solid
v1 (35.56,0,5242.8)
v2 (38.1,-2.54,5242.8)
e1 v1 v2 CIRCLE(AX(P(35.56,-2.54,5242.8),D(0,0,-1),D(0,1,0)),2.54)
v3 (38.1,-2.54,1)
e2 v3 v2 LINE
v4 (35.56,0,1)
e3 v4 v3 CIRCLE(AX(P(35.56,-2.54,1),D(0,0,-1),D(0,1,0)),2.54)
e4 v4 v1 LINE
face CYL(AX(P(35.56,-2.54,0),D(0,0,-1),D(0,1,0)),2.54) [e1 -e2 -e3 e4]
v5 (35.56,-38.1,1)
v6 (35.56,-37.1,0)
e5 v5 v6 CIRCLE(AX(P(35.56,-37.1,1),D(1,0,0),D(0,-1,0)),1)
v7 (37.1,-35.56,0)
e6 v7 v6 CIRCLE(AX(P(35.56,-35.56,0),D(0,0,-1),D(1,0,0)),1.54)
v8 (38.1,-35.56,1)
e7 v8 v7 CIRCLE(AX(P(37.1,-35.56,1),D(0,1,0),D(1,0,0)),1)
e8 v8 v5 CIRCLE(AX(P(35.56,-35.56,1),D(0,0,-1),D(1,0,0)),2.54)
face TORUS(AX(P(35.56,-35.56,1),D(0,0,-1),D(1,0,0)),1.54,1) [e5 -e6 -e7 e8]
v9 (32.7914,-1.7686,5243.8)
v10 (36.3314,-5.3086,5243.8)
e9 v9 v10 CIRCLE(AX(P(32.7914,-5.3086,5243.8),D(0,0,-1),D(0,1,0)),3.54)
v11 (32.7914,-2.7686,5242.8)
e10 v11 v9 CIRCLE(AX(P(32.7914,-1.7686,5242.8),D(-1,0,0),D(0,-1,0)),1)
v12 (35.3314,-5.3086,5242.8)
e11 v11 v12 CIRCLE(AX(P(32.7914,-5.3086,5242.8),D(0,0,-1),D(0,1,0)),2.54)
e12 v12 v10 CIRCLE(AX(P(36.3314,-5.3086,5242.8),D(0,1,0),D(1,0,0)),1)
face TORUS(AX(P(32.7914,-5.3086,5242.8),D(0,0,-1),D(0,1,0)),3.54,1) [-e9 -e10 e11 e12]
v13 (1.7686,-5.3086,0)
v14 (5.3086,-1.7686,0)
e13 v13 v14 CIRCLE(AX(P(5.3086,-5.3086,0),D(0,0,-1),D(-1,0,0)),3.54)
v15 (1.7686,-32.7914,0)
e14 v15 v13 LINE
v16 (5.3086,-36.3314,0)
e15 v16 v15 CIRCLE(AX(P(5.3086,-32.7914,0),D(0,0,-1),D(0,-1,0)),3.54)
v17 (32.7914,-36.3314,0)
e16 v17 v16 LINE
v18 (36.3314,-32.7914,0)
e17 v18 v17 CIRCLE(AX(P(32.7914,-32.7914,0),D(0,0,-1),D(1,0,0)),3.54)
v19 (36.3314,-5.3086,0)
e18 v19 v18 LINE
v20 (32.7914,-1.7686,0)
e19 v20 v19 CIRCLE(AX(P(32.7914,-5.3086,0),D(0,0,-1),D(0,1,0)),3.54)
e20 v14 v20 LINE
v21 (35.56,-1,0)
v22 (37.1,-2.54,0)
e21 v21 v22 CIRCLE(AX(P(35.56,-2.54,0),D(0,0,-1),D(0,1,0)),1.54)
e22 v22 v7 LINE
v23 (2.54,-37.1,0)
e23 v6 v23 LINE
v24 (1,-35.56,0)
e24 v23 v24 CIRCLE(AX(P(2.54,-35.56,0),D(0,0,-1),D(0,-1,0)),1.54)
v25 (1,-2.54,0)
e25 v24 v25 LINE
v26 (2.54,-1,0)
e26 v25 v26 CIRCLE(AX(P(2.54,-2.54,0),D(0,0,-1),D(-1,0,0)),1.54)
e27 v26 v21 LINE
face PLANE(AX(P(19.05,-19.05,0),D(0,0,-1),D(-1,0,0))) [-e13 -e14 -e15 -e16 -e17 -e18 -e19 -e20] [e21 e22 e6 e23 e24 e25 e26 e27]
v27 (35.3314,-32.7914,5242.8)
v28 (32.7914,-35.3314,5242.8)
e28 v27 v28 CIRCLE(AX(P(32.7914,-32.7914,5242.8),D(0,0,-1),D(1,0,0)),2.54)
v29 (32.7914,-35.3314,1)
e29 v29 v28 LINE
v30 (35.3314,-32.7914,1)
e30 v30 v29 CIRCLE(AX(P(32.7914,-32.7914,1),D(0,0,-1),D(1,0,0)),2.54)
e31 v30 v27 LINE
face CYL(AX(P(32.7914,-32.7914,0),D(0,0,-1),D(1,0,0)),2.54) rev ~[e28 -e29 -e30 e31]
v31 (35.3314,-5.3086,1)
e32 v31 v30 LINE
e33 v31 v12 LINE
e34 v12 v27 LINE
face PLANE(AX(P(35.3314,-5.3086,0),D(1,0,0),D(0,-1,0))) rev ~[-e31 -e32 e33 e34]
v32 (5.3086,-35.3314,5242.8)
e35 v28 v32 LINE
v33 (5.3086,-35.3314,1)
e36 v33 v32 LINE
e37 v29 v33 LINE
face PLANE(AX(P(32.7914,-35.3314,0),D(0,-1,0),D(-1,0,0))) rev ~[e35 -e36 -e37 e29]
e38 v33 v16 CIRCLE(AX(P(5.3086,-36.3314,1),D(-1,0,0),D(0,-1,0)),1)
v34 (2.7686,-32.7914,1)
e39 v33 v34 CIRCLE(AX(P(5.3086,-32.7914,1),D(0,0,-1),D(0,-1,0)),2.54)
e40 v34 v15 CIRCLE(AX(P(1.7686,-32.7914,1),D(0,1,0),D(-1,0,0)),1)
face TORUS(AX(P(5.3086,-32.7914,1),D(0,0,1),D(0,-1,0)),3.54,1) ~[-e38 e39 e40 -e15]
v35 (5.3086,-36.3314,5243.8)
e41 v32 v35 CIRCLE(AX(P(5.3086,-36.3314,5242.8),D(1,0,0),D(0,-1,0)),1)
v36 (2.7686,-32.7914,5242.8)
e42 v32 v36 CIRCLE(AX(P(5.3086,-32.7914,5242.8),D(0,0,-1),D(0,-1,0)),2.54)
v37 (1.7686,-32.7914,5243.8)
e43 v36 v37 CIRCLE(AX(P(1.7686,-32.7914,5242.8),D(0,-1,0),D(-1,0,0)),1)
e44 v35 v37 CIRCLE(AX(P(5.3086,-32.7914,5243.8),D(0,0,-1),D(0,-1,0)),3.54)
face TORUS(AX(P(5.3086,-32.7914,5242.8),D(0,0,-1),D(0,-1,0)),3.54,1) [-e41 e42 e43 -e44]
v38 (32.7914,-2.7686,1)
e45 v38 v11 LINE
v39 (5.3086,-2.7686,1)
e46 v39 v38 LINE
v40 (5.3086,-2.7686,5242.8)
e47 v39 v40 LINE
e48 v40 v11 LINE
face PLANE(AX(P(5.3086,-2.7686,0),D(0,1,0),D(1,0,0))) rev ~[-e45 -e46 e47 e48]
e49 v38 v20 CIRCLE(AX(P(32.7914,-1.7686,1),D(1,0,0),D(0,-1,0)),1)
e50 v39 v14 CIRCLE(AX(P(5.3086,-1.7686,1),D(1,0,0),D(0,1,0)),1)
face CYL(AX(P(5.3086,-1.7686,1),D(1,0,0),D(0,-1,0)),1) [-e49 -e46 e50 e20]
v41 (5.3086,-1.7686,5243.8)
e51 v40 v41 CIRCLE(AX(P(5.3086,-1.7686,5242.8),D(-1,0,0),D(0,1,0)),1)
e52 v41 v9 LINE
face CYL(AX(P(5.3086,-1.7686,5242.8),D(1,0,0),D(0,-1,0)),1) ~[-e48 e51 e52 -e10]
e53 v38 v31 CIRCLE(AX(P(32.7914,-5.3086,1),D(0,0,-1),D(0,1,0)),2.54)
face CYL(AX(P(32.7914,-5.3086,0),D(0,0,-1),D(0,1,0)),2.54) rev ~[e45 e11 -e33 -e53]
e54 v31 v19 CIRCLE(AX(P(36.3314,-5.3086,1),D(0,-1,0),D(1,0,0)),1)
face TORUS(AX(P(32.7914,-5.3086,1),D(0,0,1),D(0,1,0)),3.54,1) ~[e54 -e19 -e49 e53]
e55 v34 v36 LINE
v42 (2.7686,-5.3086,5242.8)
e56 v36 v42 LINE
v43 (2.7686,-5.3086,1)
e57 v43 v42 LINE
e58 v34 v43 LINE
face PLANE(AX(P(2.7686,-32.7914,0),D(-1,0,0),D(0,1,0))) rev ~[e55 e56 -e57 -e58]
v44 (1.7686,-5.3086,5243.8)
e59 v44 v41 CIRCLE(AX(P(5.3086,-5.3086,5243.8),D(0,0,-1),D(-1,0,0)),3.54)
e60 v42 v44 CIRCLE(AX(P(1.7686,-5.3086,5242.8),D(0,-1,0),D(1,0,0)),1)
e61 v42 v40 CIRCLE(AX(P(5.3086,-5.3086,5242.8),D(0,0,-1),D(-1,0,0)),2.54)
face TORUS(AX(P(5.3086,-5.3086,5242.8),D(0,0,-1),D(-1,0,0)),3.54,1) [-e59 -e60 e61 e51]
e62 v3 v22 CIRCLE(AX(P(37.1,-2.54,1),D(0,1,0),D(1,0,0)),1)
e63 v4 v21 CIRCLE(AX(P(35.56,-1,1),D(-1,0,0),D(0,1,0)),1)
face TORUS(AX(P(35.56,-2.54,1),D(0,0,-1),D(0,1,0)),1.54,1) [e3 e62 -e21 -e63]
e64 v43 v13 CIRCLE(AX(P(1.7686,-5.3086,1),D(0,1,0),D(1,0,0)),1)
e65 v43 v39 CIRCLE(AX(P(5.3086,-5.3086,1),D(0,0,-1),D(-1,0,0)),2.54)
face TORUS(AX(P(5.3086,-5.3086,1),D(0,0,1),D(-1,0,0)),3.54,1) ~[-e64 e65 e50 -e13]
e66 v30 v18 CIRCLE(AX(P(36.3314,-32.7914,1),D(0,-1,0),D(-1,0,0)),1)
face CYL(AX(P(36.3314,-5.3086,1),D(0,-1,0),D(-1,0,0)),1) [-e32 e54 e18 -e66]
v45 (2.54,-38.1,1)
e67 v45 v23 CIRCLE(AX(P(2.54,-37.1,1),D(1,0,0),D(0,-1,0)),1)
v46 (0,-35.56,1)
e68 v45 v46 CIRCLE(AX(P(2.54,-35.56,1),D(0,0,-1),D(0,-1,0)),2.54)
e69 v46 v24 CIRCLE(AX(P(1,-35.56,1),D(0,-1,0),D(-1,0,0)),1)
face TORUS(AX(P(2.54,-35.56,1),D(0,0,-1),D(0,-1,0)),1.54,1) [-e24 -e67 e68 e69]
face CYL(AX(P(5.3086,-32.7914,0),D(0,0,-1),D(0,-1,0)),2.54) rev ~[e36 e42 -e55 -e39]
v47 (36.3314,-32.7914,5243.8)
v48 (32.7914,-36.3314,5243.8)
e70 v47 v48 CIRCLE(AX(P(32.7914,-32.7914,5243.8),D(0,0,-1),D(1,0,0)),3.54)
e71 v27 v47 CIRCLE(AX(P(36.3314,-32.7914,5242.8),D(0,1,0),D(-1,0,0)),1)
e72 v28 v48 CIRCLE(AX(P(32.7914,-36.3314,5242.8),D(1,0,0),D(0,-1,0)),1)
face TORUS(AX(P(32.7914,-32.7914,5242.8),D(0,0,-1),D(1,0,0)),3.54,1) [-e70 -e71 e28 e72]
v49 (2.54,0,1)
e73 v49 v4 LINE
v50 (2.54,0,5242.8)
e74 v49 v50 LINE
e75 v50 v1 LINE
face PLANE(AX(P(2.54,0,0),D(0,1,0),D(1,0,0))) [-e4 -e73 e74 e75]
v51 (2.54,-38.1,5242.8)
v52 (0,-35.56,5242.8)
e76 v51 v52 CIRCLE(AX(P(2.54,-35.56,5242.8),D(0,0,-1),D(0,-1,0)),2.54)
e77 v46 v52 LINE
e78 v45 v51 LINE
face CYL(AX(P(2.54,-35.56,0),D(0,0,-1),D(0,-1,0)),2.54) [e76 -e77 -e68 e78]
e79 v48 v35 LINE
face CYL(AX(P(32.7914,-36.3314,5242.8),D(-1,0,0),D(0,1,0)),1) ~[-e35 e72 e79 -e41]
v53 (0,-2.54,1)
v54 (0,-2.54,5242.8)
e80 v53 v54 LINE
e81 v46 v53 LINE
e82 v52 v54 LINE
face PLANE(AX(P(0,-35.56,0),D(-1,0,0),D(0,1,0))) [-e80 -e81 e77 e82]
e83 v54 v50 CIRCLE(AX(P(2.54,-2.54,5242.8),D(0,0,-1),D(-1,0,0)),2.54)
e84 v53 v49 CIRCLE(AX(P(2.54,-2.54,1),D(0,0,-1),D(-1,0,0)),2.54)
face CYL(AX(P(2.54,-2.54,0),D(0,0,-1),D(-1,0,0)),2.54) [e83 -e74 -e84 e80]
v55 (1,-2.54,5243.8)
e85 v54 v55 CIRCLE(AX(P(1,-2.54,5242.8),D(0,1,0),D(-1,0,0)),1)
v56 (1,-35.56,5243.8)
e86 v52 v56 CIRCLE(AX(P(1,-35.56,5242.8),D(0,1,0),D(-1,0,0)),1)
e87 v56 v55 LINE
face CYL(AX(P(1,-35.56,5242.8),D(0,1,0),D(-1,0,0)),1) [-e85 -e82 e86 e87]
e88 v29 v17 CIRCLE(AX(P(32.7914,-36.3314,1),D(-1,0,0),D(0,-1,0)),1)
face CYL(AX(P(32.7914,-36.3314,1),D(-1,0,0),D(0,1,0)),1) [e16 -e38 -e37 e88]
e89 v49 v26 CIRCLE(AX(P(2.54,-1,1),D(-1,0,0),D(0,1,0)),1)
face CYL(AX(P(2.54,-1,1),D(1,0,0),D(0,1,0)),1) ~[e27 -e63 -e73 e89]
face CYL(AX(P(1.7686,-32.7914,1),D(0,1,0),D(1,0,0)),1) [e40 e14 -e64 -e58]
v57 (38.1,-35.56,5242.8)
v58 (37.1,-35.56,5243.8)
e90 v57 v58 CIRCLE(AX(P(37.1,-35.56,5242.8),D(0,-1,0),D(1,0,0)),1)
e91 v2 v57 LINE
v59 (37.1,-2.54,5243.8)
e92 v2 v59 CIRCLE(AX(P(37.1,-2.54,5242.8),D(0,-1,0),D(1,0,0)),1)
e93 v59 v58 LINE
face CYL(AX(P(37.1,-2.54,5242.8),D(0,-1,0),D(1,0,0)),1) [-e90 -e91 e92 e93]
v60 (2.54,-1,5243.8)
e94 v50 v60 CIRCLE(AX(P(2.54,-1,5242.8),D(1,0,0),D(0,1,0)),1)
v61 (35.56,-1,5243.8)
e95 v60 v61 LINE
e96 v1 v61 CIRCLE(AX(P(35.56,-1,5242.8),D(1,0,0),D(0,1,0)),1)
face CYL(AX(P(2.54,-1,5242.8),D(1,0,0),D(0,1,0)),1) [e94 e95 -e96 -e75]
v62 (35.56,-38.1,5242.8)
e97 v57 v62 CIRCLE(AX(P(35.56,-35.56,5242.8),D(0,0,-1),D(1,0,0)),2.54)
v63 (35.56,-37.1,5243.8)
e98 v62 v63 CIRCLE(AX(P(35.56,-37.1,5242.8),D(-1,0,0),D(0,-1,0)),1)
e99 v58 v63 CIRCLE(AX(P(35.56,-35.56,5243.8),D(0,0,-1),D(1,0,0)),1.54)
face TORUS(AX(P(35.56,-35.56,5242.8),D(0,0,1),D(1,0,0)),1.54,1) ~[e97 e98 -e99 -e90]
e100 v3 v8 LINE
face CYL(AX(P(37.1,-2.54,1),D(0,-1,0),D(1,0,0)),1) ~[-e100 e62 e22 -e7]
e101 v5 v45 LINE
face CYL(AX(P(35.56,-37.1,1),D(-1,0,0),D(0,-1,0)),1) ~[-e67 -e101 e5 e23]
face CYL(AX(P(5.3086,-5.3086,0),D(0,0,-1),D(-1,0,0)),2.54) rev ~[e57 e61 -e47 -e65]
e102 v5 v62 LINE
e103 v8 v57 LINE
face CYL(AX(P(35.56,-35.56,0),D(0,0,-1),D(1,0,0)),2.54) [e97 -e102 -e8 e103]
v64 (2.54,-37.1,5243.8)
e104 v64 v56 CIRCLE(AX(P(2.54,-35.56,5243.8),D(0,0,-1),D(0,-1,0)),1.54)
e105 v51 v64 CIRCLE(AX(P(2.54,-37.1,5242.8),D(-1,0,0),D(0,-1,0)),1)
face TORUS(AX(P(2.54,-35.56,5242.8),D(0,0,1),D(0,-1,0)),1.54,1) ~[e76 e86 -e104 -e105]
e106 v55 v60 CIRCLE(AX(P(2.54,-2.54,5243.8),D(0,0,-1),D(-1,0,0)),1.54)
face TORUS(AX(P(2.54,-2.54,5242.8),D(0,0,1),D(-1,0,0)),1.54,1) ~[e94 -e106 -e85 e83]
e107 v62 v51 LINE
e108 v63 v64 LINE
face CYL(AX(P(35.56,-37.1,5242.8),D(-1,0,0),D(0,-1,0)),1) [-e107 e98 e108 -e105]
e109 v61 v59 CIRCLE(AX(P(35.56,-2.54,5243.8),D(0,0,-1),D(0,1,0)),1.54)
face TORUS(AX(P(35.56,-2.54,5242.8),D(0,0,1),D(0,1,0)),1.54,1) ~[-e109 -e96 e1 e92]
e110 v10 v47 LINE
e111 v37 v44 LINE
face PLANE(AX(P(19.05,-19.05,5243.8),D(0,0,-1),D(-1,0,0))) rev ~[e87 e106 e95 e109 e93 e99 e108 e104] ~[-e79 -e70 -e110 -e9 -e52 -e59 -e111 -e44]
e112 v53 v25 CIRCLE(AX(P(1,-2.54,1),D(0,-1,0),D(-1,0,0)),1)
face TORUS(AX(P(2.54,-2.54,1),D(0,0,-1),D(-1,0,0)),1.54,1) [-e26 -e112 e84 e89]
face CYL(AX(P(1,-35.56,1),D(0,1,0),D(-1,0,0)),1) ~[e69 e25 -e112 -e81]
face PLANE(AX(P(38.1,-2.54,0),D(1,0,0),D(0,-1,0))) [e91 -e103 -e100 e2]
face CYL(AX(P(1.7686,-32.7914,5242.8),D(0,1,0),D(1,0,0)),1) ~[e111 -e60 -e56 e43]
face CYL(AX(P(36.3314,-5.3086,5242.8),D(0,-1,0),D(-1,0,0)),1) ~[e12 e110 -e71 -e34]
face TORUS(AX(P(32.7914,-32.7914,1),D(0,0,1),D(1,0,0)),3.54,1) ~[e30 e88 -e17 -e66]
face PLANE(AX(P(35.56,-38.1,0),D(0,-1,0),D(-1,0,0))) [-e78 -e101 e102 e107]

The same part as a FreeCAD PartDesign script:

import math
import FreeCAD as App
import Part
import Sketcher
Q = App.Units.Quantity


def edges_at(feature, points):
    """Names of the edges that pass closest to the given points."""
    edges = feature.Shape.Edges
    near = lambda p: min(range(len(edges)), key=lambda i: edges[i].distToShape(Part.Vertex(*p))[0])
    return sorted({f"Edge{near(p) + 1}" for p in points})

doc = App.newDocument("Part")
body = doc.addObject("PartDesign::Body", "Body")

# Sketch on XY plane
sketch1 = body.newObject("Sketcher::SketchObject", "Sketch")
sketch1.AttachmentSupport = (doc.getObject("XY_Plane"), [""])
sketch1.MapMode = "FlatFace"
sketch1.addGeometry([
    Part.LineSegment(App.Vector(35.6, 0, 0), App.Vector(2.5, 0, 0)),  # 0
    Part.ArcOfCircle(Part.Circle(App.Vector(2.5, -2.5, 0), App.Vector(0, 0, 1), 2.5), math.radians(90), math.radians(180)),  # 1
    Part.LineSegment(App.Vector(0, -2.5, 0), App.Vector(0, -35.6, 0)),  # 2
    Part.ArcOfCircle(Part.Circle(App.Vector(2.5, -35.6, 0), App.Vector(0, 0, 1), 2.5), math.radians(-180), math.radians(-90)),  # 3
    Part.LineSegment(App.Vector(2.5, -38.1, 0), App.Vector(35.6, -38.1, 0)),  # 4
    Part.ArcOfCircle(Part.Circle(App.Vector(35.6, -35.6, 0), App.Vector(0, 0, 1), 2.5), math.radians(-90), math.radians(0)),  # 5
    Part.LineSegment(App.Vector(38.1, -35.6, 0), App.Vector(38.1, -2.5, 0)),  # 6
    Part.ArcOfCircle(Part.Circle(App.Vector(35.6, -2.5, 0), App.Vector(0, 0, 1), 2.5), math.radians(0), math.radians(90)),  # 7
    Part.LineSegment(App.Vector(5.3, -2.8, 0), App.Vector(32.8, -2.8, 0)),  # 8
    Part.ArcOfCircle(Part.Circle(App.Vector(32.8, -5.3, 0), App.Vector(0, 0, 1), 2.5), math.radians(0), math.radians(90)),  # 9
    Part.LineSegment(App.Vector(35.3, -5.3, 0), App.Vector(35.3, -32.8, 0)),  # 10
    Part.ArcOfCircle(Part.Circle(App.Vector(32.8, -32.8, 0), App.Vector(0, 0, 1), 2.5), math.radians(-90), math.radians(0)),  # 11
    Part.LineSegment(App.Vector(32.8, -35.3, 0), App.Vector(5.3, -35.3, 0)),  # 12
    Part.ArcOfCircle(Part.Circle(App.Vector(5.3, -32.8, 0), App.Vector(0, 0, 1), 2.5), math.radians(-180), math.radians(-90)),  # 13
    Part.LineSegment(App.Vector(2.8, -32.8, 0), App.Vector(2.8, -5.3, 0)),  # 14
    Part.ArcOfCircle(Part.Circle(App.Vector(5.3, -5.3, 0), App.Vector(0, 0, 1), 2.5), math.radians(90), math.radians(180)),  # 15
], False)
sketch1.addConstraint([
    Sketcher.Constraint("Tangent", 0, 2, 1, 1),
    Sketcher.Constraint("Tangent", 1, 2, 2, 1),
    Sketcher.Constraint("Tangent", 2, 2, 3, 1),
    Sketcher.Constraint("Tangent", 3, 2, 4, 1),
    Sketcher.Constraint("Tangent", 4, 2, 5, 1),
    Sketcher.Constraint("Tangent", 5, 2, 6, 1),
    Sketcher.Constraint("Tangent", 6, 2, 7, 1),
    Sketcher.Constraint("Tangent", 7, 2, 0, 1),
    Sketcher.Constraint("Tangent", 8, 2, 9, 2),
    Sketcher.Constraint("Tangent", 9, 1, 10, 1),
    Sketcher.Constraint("Tangent", 10, 2, 11, 2),
    Sketcher.Constraint("Tangent", 11, 1, 12, 1),
    Sketcher.Constraint("Tangent", 12, 2, 13, 2),
    Sketcher.Constraint("Tangent", 13, 1, 14, 1),
    Sketcher.Constraint("Tangent", 14, 2, 15, 2),
    Sketcher.Constraint("Tangent", 15, 1, 8, 1),
    Sketcher.Constraint("Horizontal", 0),
    Sketcher.Constraint("Vertical", 2),
    Sketcher.Constraint("Horizontal", 4),
    Sketcher.Constraint("Vertical", 6),
    Sketcher.Constraint("Horizontal", 8),
    Sketcher.Constraint("Vertical", 10),
    Sketcher.Constraint("Horizontal", 12),
    Sketcher.Constraint("Vertical", 14),
    Sketcher.Constraint("Equal", 1, 3),
    Sketcher.Constraint("Equal", 3, 5),
    Sketcher.Constraint("Equal", 5, 7),
    Sketcher.Constraint("Equal", 7, 9),
    Sketcher.Constraint("Equal", 9, 11),
    Sketcher.Constraint("Equal", 11, 13),
    Sketcher.Constraint("Equal", 13, 15),
    Sketcher.Constraint("PointOnObject", 0, 2, -1),
    Sketcher.Constraint("PointOnObject", 1, 2, -2),
    Sketcher.Constraint("Equal", 4, 2),
    Sketcher.Constraint("Equal", 12, 10),
    Sketcher.Constraint("Radius", 1, Q("0.1 in")),
    Sketcher.Constraint("DistanceX", 0, 2, 0, 1, Q("1.3 in")),
    Sketcher.Constraint("DistanceX", 8, 1, 8, 2, Q("1.082 in")),
    Sketcher.Constraint("DistanceX", -1, 1, 9, 3, Q("1.291 in")),
    Sketcher.Constraint("DistanceY", 9, 3, -1, 1, Q("0.209 in")),
])
pad1 = body.newObject("PartDesign::Pad", "Pad")
pad1.Profile = sketch1
pad1.Length = 5243.8
doc.recompute()

fillet = body.newObject("PartDesign::Fillet", "Fillet")
fillet.Base = (pad1, edges_at(pad1, [
    (37.356, -37.356, 5243.8),
    (19.05, -38.1, 0),
    (0.744, -37.356, 0),
    (38.1, -19.05, 5243.8),
    (37.356, -0.744, 5243.8),
    (19.05, 0, 5243.8),
    (0.744, -0.744, 5243.8),
    (0, -19.05, 5243.8),
    (3.513, -34.587, 0),
    (19.05, -35.331, 0),
    (34.587, -34.587, 0),
    (35.331, -19.05, 0),
    (34.587, -3.513, 0),
    (19.05, -2.769, 0),
    (3.513, -3.513, 0),
    (2.769, -19.05, 0),
    (3.513, -34.587, 5243.8),
    (19.05, -35.331, 5243.8),
    (34.587, -34.587, 5243.8),
    (35.331, -19.05, 5243.8),
    (34.587, -3.513, 5243.8),
    (19.05, -2.769, 5243.8),
    (3.513, -3.513, 5243.8),
    (2.769, -19.05, 5243.8),
    (0.744, -37.356, 5243.8),
    (19.05, -38.1, 5243.8),
    (0, -19.05, 0),
    (0.744, -0.744, 0),
    (19.05, 0, 0),
    (37.356, -0.744, 0),
    (38.1, -19.05, 0),
    (37.356, -37.356, 0),
]))
fillet.Radius = 1

doc.recompute()
